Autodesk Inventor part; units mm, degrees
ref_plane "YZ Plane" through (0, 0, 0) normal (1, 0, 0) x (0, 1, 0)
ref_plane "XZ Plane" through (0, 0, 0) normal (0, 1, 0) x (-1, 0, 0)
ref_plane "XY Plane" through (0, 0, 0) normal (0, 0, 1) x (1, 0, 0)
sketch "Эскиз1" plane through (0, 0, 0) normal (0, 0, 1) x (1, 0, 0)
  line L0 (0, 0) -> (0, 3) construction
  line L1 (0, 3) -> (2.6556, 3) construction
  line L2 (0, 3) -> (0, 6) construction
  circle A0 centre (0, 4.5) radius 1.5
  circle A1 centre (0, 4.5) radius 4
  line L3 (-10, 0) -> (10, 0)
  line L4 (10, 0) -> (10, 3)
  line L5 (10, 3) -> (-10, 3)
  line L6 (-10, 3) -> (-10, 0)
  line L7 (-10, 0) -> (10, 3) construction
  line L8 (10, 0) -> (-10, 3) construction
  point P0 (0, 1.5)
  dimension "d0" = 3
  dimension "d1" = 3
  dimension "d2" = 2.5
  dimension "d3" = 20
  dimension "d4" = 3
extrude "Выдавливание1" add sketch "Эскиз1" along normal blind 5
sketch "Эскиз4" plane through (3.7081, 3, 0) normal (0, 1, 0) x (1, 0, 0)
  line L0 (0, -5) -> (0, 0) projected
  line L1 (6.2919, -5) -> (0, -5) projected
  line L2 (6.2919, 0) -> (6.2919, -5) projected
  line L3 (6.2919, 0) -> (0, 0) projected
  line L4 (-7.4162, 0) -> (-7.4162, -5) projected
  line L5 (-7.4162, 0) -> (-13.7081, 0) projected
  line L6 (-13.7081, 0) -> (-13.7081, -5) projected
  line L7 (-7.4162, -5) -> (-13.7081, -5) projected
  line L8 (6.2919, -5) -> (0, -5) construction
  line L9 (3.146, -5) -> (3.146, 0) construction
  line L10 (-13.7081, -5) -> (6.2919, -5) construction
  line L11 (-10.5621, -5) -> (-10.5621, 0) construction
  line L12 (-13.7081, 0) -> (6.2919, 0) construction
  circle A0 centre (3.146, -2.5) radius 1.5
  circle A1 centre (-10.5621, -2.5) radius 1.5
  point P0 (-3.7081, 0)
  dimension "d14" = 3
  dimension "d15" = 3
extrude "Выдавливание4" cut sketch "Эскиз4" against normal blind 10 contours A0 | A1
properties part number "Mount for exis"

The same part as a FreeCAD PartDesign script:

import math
import FreeCAD as App
import Part
import Sketcher

doc = App.newDocument("Part")
body = doc.addObject("PartDesign::Body", "Body")

sketch1 = body.newObject("Sketcher::SketchObject", "Sketch")
sketch1.AttachmentSupport = (doc.getObject("XY_Plane"), [""])
sketch1.MapMode = "FlatFace"
sketch1.addGeometry([
    Part.LineSegment(App.Vector(-3.7, 3, 0), App.Vector(-10, 3, 0)),
    Part.LineSegment(App.Vector(-10, 3, 0), App.Vector(-10, 0, 0)),
    Part.LineSegment(App.Vector(-10, 0, 0), App.Vector(10, 0, 0)),
    Part.LineSegment(App.Vector(10, 0, 0), App.Vector(10, 3, 0)),
    Part.LineSegment(App.Vector(10, 3, 0), App.Vector(3.7, 3, 0)),
    Part.ArcOfCircle(Part.Circle(App.Vector(0, 4.5, 0), App.Vector(0, 0, 1), 4), math.radians(-22), math.radians(202)),
    Part.Circle(App.Vector(0, 4.5, 0), App.Vector(0, 0, 1), 1.5),
], False)
sketch1.addConstraint([
    Sketcher.Constraint("Coincident", 0, 2, 1, 1),
    Sketcher.Constraint("Coincident", 1, 2, 2, 1),
    Sketcher.Constraint("Coincident", 2, 2, 3, 1),
    Sketcher.Constraint("Coincident", 3, 2, 4, 1),
    Sketcher.Constraint("Coincident", 4, 2, 5, 1),
    Sketcher.Constraint("Coincident", 5, 2, 0, 1),
    Sketcher.Constraint("Horizontal", 0),
    Sketcher.Constraint("Vertical", 1),
    Sketcher.Constraint("Horizontal", 2),
    Sketcher.Constraint("Vertical", 3),
    Sketcher.Constraint("Horizontal", 4),
    Sketcher.Constraint("Coincident", 6, 3, 5, 3),
    Sketcher.Constraint("Symmetric", 1, 2, 2, 2, -1, 1),
    Sketcher.Constraint("Symmetric", 4, 2, 5, 2, -2),
    Sketcher.Constraint("Diameter", 6, 3.0),
    Sketcher.Constraint("DistanceX", 2, 1, 2, 2, 20.0),
    Sketcher.Constraint("DistanceY", 1, 2, 1, 1, 3.0),
    Sketcher.Constraint("Radius", 5, 4.0),
    Sketcher.Constraint("DistanceY", -1, 1, 5, 3, 4.5),
])
pad1 = body.newObject("PartDesign::Pad", "Pad")
pad1.Profile = sketch1
pad1.Length = 5

sketch2 = body.newObject("Sketcher::SketchObject", "Sketch001")
sketch2.AttachmentSupport = (doc.getObject("XZ_Plane"), [""])
sketch2.MapMode = "FlatFace"
sketch2.AttachmentOffset = App.Placement(App.Vector(0, 0, -3), App.Rotation())
sketch2.addGeometry([
    Part.Circle(App.Vector(6.9, 2.5, 0), App.Vector(0, 0, 1), 1.5),
    Part.Circle(App.Vector(-6.9, 2.5, 0), App.Vector(0, 0, 1), 1.5),
], False)
sketch2.addConstraint([
    Sketcher.Constraint("Equal", 0, 1),
    Sketcher.Constraint("Symmetric", 0, 3, 1, 3, -2),
    Sketcher.Constraint("Diameter", 0, 3.0),
    Sketcher.Constraint("DistanceY", -1, 1, 0, 3, 2.5),
    Sketcher.Constraint("DistanceX", -1, 1, 0, 3, 6.854),
])
pocket1 = body.newObject("PartDesign::Pocket", "Pocket")
pocket1.Profile = sketch2
pocket1.Length = 10
pocket1.Reversed = True

doc.recompute()
